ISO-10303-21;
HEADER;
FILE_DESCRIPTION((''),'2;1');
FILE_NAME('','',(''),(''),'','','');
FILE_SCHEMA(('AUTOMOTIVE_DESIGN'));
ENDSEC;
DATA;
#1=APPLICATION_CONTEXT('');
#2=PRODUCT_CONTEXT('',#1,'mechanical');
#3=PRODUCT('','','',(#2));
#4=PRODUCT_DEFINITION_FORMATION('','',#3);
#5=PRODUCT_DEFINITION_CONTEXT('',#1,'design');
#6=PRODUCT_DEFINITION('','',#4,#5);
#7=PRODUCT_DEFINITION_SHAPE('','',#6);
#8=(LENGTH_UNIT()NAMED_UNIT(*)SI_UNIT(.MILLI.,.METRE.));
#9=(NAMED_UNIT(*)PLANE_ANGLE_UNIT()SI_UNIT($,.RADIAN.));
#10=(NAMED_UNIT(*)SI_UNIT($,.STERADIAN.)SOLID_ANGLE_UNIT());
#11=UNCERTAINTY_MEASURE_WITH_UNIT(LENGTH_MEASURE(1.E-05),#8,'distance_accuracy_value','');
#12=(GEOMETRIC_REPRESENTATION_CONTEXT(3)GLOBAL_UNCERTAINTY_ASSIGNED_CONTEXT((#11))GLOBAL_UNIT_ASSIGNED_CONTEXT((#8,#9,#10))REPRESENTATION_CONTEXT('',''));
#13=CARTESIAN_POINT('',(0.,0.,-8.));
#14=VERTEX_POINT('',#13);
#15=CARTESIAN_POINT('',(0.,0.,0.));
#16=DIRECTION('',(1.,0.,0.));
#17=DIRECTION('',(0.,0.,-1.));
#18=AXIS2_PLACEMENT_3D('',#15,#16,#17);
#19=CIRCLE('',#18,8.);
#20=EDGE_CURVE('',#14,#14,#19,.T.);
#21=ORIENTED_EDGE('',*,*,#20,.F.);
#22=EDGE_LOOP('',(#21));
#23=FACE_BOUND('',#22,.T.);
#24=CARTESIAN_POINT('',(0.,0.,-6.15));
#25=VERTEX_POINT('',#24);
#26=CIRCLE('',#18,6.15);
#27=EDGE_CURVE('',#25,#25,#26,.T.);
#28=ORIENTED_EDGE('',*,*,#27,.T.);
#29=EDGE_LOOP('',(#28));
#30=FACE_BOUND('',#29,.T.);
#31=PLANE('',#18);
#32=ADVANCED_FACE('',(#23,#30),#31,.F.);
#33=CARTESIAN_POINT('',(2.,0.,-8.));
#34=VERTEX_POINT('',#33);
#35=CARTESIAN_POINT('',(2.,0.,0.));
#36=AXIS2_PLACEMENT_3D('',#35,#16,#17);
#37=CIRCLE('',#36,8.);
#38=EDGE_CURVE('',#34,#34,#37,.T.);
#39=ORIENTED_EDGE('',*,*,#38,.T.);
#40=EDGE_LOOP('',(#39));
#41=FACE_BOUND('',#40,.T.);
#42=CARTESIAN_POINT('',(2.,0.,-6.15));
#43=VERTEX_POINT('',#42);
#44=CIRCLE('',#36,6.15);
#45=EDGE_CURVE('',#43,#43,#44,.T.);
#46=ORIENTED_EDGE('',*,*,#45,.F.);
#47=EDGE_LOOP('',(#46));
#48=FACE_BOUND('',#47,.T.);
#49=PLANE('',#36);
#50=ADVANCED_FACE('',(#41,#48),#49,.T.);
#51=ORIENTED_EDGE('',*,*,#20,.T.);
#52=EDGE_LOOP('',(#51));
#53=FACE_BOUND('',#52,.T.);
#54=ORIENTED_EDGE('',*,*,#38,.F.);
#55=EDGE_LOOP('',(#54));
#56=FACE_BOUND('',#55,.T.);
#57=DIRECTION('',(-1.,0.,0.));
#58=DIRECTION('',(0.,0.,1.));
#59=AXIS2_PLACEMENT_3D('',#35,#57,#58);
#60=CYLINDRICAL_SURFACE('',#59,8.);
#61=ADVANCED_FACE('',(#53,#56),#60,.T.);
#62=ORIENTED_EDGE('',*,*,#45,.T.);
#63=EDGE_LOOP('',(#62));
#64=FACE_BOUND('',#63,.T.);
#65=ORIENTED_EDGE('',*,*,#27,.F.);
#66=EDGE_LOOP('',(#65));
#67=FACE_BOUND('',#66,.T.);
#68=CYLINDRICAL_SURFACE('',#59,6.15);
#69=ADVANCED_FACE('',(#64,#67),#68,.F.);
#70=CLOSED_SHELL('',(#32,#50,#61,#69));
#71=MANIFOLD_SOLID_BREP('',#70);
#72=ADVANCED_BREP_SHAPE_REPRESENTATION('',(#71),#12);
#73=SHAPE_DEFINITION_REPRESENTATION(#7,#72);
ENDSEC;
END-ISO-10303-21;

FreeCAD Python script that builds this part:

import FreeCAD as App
import Part
import Sketcher

V = App.Vector
Q = App.Units.Quantity

doc = App.newDocument("Part")
body = doc.addObject("PartDesign::Body", "Body")

sketch1 = body.newObject("Sketcher::SketchObject", "Sketch")
sketch1.AttachmentSupport = (doc.getObject("YZ_Plane"), [""])
sketch1.MapMode = "FlatFace"
sketch1.addGeometry([
    Part.Circle(V(0, 0, 0), V(0, 0, 1), 8),
    Part.Circle(V(0, 0, 0), V(0, 0, 1), 6),
], False)
sketch1.addConstraint([
    Sketcher.Constraint("Coincident", 0, 3, -1, 1),
    Sketcher.Constraint("Coincident", 1, 3, -1, 1),
    Sketcher.Constraint("Diameter", 0, Q("16 mm")),
    Sketcher.Constraint("Diameter", 1, Q("12.3 mm")),
])
pad1 = body.newObject("PartDesign::Pad", "Pad")
pad1.Profile = sketch1
pad1.Length = 2

doc.recompute()
